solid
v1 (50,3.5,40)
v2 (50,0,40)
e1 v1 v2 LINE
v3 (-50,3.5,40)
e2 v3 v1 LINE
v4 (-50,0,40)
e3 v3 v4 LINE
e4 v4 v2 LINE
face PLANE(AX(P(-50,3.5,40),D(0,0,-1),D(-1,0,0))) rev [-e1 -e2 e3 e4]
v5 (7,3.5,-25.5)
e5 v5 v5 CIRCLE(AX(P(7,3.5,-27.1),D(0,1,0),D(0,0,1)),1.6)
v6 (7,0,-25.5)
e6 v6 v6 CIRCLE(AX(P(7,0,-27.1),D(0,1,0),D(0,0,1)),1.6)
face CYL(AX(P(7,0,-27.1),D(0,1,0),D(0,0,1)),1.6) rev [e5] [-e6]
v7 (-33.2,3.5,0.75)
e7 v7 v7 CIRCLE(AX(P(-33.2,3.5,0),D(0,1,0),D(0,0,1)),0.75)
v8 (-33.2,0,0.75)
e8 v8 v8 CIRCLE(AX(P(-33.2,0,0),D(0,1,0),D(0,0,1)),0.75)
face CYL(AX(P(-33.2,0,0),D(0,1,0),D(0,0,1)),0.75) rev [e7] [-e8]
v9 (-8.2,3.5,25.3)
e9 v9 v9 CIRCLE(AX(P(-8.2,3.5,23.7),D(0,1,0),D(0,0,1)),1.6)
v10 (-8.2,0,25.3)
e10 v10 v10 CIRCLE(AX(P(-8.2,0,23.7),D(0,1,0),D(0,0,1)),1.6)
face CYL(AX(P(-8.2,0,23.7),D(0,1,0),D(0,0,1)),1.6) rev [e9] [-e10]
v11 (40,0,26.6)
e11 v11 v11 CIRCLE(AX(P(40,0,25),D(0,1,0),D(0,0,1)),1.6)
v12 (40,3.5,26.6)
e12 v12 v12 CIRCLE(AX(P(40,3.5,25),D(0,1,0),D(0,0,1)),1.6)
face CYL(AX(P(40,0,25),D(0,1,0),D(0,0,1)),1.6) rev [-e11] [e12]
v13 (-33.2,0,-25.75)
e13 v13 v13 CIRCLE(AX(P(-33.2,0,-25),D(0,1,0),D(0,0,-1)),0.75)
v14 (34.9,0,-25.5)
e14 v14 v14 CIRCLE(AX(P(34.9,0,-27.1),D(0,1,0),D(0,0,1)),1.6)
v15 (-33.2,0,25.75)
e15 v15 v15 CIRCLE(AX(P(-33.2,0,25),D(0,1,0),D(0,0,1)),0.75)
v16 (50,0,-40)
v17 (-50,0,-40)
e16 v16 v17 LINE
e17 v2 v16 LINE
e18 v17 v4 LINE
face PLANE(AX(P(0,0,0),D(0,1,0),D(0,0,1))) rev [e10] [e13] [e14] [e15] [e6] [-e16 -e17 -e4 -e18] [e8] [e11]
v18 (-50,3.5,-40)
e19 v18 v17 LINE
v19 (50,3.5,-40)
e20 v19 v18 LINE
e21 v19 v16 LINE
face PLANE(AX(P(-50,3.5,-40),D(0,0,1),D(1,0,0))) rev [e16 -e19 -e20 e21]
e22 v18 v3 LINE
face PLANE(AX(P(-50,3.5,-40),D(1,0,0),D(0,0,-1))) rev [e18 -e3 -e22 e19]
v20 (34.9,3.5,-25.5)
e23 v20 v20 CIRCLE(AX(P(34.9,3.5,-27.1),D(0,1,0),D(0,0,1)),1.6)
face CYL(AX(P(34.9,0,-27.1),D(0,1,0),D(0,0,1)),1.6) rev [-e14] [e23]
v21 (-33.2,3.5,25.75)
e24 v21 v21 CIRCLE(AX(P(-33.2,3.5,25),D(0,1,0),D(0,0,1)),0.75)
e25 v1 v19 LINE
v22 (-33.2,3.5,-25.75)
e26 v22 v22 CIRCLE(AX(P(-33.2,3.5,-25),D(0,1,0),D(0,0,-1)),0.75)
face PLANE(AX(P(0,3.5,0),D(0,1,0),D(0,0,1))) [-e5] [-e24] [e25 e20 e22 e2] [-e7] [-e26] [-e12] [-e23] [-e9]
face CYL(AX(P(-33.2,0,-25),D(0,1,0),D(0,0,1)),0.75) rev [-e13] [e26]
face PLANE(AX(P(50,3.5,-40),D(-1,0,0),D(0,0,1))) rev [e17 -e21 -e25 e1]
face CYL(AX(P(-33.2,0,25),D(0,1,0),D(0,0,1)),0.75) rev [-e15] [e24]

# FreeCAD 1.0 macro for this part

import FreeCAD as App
import Part
import Sketcher
from FreeCAD import Vector

doc = App.newDocument("Part")
body = doc.addObject("PartDesign::Body", "Body")

# Sketch on XZ plane
sketch1 = body.newObject("Sketcher::SketchObject", "Sketch")
sketch1.AttachmentSupport = (doc.getObject("XZ_Plane"), [""])
sketch1.MapMode = "FlatFace"
sketch1.addGeometry(Part.LineSegment(Vector(-50, -40, 0), Vector(-50, 40, 0)), False)
sketch1.addGeometry(Part.LineSegment(Vector(-50, 40, 0), Vector(50, 40, 0)), False)
sketch1.addGeometry(Part.LineSegment(Vector(50, 40, 0), Vector(50, -40, 0)), False)
sketch1.addGeometry(Part.LineSegment(Vector(50, -40, 0), Vector(-50, -40, 0)), False)
sketch1.addConstraint(Sketcher.Constraint("Coincident", 0, 2, 1, 1))
sketch1.addConstraint(Sketcher.Constraint("Coincident", 1, 2, 2, 1))
sketch1.addConstraint(Sketcher.Constraint("Coincident", 2, 2, 3, 1))
sketch1.addConstraint(Sketcher.Constraint("Coincident", 3, 2, 0, 1))
sketch1.addConstraint(Sketcher.Constraint("Vertical", 0))
sketch1.addConstraint(Sketcher.Constraint("Horizontal", 1))
sketch1.addConstraint(Sketcher.Constraint("Vertical", 2))
sketch1.addConstraint(Sketcher.Constraint("Horizontal", 3))
sketch1.addConstraint(Sketcher.Constraint("Symmetric", 0, 2, 2, 2, -1, 1))
sketch1.addConstraint(Sketcher.Constraint("DistanceX", 1, 1, 1, 2, 100.0))
sketch1.addConstraint(Sketcher.Constraint("DistanceY", 0, 1, 0, 2, 80.0))
pad1 = body.newObject("PartDesign::Pad", "Pad")
pad1.Profile = sketch1
pad1.Length = 3.5
pad1.Reversed = True

# Sketch on XZ plane
sketch2 = body.newObject("Sketcher::SketchObject", "Sketch001")
sketch2.AttachmentSupport = (doc.getObject("XZ_Plane"), [""])
sketch2.MapMode = "FlatFace"
sketch2.AttachmentOffset = App.Placement(Vector(0, 0, -3.5), App.Rotation())
sketch2.addGeometry(Part.Circle(Vector(40, 25, 0), Vector(0, 0, 1), 1.6), False)
sketch2.addGeometry(Part.Circle(Vector(-8.2, 23.7, 0), Vector(0, 0, 1), 1.6), False)
sketch2.addGeometry(Part.Circle(Vector(7, -27.1, 0), Vector(0, 0, 1), 1.6), False)
sketch2.addGeometry(Part.Circle(Vector(34.9, -27.1, 0), Vector(0, 0, 1), 1.6), False)
sketch2.addGeometry(Part.Circle(Vector(-33.2, 25, 0), Vector(0, 0, 1), 0.8), False)
sketch2.addGeometry(Part.Circle(Vector(-33.2, -25, 0), Vector(0, 0, 1), 0.8), False)
sketch2.addGeometry(Part.Circle(Vector(-33.2, 0, 0), Vector(0, 0, 1), 0.8), False)
sketch2.addConstraint(Sketcher.Constraint("Equal", 0, 1))
sketch2.addConstraint(Sketcher.Constraint("Equal", 1, 2))
sketch2.addConstraint(Sketcher.Constraint("Equal", 2, 3))
sketch2.addConstraint(Sketcher.Constraint("Equal", 4, 5))
sketch2.addConstraint(Sketcher.Constraint("Equal", 5, 6))
sketch2.addConstraint(Sketcher.Constraint("Symmetric", 4, 3, 5, 3, -1))
sketch2.addConstraint(Sketcher.Constraint("PointOnObject", 6, 3, -1))
sketch2.addConstraint(Sketcher.Constraint("Horizontal", 2, 3, 3, 3))
sketch2.addConstraint(Sketcher.Constraint("Horizontal", 0, 3, 4, 3))
sketch2.addConstraint(Sketcher.Constraint("Vertical", 5, 3, 6, 3))
sketch2.addConstraint(Sketcher.Constraint("Diameter", 0, 3.2))
sketch2.addConstraint(Sketcher.Constraint("Diameter", 4, 1.5))
sketch2.addConstraint(Sketcher.Constraint("DistanceX", -1, 1, 0, 3, 40.0))
sketch2.addConstraint(Sketcher.Constraint("DistanceY", -1, 1, 0, 3, 25.0))
sketch2.addConstraint(Sketcher.Constraint("DistanceX", -1, 1, 2, 3, 7.0))
sketch2.addConstraint(Sketcher.Constraint("DistanceX", 4, 3, 1, 3, 25.0))
sketch2.addConstraint(Sketcher.Constraint("DistanceX", 1, 3, -1, 1, 8.2))
sketch2.addConstraint(Sketcher.Constraint("DistanceY", -1, 1, 1, 3, 23.7))
sketch2.addConstraint(Sketcher.Constraint("DistanceY", 2, 3, -1, 1, 27.1))
sketch2.addConstraint(Sketcher.Constraint("DistanceX", -1, 1, 3, 3, 34.9))
pocket1 = body.newObject("PartDesign::Pocket", "Pocket")
pocket1.Profile = sketch2
pocket1.Type = "ThroughAll"
pocket1.Reversed = True

doc.recompute()
